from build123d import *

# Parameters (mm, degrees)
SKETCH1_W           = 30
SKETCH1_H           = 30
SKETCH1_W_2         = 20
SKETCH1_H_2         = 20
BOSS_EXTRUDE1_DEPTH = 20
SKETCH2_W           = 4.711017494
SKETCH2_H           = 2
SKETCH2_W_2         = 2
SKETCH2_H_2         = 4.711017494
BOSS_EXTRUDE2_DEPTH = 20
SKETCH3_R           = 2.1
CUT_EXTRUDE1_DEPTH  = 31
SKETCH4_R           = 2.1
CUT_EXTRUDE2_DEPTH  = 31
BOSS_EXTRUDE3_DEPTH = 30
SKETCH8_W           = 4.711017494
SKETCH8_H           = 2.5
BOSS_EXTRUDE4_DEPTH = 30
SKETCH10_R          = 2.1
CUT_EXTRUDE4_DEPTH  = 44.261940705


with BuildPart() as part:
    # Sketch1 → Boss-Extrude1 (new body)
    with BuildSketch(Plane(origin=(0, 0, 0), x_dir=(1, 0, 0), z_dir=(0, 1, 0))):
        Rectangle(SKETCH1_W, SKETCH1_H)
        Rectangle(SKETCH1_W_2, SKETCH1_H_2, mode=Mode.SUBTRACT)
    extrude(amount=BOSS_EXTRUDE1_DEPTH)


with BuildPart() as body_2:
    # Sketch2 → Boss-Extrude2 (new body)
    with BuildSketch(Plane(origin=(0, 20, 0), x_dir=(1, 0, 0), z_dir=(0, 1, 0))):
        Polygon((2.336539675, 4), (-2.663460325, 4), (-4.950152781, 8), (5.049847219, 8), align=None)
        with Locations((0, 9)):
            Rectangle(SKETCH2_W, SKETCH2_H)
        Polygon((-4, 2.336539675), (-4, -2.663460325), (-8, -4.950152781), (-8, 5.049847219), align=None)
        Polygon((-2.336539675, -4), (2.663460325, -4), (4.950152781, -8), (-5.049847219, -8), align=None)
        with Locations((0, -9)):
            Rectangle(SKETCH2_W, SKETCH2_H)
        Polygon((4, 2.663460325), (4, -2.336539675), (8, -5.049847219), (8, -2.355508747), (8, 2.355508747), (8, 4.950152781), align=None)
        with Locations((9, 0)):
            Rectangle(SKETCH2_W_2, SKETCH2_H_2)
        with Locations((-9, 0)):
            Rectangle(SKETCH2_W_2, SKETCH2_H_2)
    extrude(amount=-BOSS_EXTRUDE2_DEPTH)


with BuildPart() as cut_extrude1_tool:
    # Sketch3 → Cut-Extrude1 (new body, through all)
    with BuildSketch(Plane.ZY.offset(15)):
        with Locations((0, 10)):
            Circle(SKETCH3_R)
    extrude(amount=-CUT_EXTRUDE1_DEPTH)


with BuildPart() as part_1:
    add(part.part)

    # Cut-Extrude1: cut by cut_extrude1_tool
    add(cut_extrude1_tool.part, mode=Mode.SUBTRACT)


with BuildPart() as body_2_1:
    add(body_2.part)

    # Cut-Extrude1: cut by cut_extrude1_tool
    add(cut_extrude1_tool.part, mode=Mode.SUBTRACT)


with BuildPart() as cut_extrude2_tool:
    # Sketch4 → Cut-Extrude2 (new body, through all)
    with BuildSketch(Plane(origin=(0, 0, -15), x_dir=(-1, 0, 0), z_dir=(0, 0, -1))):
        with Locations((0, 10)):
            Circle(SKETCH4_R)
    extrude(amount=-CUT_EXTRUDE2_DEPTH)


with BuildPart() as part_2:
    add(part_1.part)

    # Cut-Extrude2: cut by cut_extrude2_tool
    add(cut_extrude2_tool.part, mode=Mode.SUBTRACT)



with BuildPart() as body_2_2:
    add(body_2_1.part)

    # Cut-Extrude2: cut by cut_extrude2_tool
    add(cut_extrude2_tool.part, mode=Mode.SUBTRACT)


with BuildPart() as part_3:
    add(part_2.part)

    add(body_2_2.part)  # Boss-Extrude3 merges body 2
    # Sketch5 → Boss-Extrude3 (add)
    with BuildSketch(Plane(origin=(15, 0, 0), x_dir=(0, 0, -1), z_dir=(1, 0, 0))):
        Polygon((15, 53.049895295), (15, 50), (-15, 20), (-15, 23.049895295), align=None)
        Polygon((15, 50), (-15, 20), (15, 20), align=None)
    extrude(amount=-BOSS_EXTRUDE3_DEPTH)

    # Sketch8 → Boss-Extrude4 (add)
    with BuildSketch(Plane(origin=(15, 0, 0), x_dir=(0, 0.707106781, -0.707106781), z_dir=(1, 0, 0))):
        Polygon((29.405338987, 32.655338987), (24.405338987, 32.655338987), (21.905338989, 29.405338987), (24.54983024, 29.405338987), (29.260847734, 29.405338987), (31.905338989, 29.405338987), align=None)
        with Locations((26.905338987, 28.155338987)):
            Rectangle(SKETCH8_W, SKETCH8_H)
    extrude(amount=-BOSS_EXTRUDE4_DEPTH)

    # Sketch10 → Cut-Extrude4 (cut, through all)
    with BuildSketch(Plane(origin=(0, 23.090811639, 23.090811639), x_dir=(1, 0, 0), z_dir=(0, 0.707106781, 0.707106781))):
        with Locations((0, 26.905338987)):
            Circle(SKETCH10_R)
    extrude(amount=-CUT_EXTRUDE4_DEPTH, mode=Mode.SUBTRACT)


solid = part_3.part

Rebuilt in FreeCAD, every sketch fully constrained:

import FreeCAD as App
import Part
import Sketcher
from FreeCAD import Vector
Q = App.Units.Quantity

doc = App.newDocument("Part")
body = doc.addObject("PartDesign::Body", "Body")

# Sketch on XZ plane
sketch1 = doc.addObject("Sketcher::SketchObject", "Sketch")
body.addObject(sketch1)
sketch1.AttachmentSupport = (doc.XZ_Plane, [""])
sketch1.MapMode = "FlatFace"
sketch1.addGeometry(Part.LineSegment(Vector(-15, -15, 0), Vector(-15, 15, 0)), False)
sketch1.addGeometry(Part.LineSegment(Vector(-15, 15, 0), Vector(15, 15, 0)), False)
sketch1.addGeometry(Part.LineSegment(Vector(15, 15, 0), Vector(15, -15, 0)), False)
sketch1.addGeometry(Part.LineSegment(Vector(15, -15, 0), Vector(-15, -15, 0)), False)
sketch1.addGeometry(Part.LineSegment(Vector(10, 10, 0), Vector(-10, 10, 0)), False)
sketch1.addGeometry(Part.LineSegment(Vector(-10, 10, 0), Vector(-10, -10, 0)), False)
sketch1.addGeometry(Part.LineSegment(Vector(-10, -10, 0), Vector(10, -10, 0)), False)
sketch1.addGeometry(Part.LineSegment(Vector(10, -10, 0), Vector(10, 10, 0)), False)
sketch1.addConstraint(Sketcher.Constraint("Coincident", 0, 2, 1, 1))
sketch1.addConstraint(Sketcher.Constraint("Coincident", 1, 2, 2, 1))
sketch1.addConstraint(Sketcher.Constraint("Coincident", 2, 2, 3, 1))
sketch1.addConstraint(Sketcher.Constraint("Coincident", 3, 2, 0, 1))
sketch1.addConstraint(Sketcher.Constraint("Coincident", 4, 2, 5, 1))
sketch1.addConstraint(Sketcher.Constraint("Coincident", 5, 2, 6, 1))
sketch1.addConstraint(Sketcher.Constraint("Coincident", 6, 2, 7, 1))
sketch1.addConstraint(Sketcher.Constraint("Coincident", 7, 2, 4, 1))
sketch1.addConstraint(Sketcher.Constraint("Vertical", 0))
sketch1.addConstraint(Sketcher.Constraint("Horizontal", 1))
sketch1.addConstraint(Sketcher.Constraint("Vertical", 2))
sketch1.addConstraint(Sketcher.Constraint("Horizontal", 3))
sketch1.addConstraint(Sketcher.Constraint("Horizontal", 4))
sketch1.addConstraint(Sketcher.Constraint("Vertical", 5))
sketch1.addConstraint(Sketcher.Constraint("Horizontal", 6))
sketch1.addConstraint(Sketcher.Constraint("Vertical", 7))
sketch1.addConstraint(Sketcher.Constraint("Symmetric", 0, 2, 2, 2, -1, 1))
sketch1.addConstraint(Sketcher.Constraint("Symmetric", 4, 2, 6, 2, -1, 1))
sketch1.addConstraint(Sketcher.Constraint("Equal", 3, 0))
sketch1.addConstraint(Sketcher.Constraint("Equal", 6, 5))
sketch1.addConstraint(Sketcher.Constraint("DistanceX", 1, 1, 1, 2, 30.0))
sketch1.addConstraint(Sketcher.Constraint("DistanceX", 4, 2, 4, 1, 20.0))
pad1 = doc.addObject("PartDesign::Pad", "Pad")
body.addObject(pad1)
pad1.Profile = sketch1
pad1.Length = 20
pad1.Reversed = True
body2 = doc.addObject("PartDesign::Body", "Body001")
body2.AllowCompound = True

# Sketch on XZ plane
sketch2 = doc.addObject("Sketcher::SketchObject", "Sketch001")
body2.addObject(sketch2)
sketch2.AttachmentSupport = (doc.getObject("XZ_Plane001"), [""])
sketch2.MapMode = "FlatFace"
sketch2.AttachmentOffset = App.Placement(Vector(0, 0, -20), App.Rotation())
sketch2.addGeometry(Part.LineSegment(Vector(-2.7, -4, 0), Vector(2.3, -4, 0)), False)
sketch2.addGeometry(Part.LineSegment(Vector(2.3, -4, 0), Vector(5, -8, 0)), False)
sketch2.addGeometry(Part.LineSegment(Vector(5, -8, 0), Vector(2.4, -8, 0)), False)
sketch2.addGeometry(Part.LineSegment(Vector(2.4, -8, 0), Vector(2.4, -10, 0)), False)
sketch2.addGeometry(Part.LineSegment(Vector(2.4, -10, 0), Vector(-2.4, -10, 0)), False)
sketch2.addGeometry(Part.LineSegment(Vector(-2.4, -10, 0), Vector(-2.4, -8, 0)), False)
sketch2.addGeometry(Part.LineSegment(Vector(-2.4, -8, 0), Vector(-5, -8, 0)), False)
sketch2.addGeometry(Part.LineSegment(Vector(-5, -8, 0), Vector(-2.7, -4, 0)), False)
sketch2.addGeometry(Part.LineSegment(Vector(-4, 2.7, 0), Vector(-4, -2.3, 0)), False)
sketch2.addGeometry(Part.LineSegment(Vector(-4, -2.3, 0), Vector(-8, -5, 0)), False)
sketch2.addGeometry(Part.LineSegment(Vector(-8, -5, 0), Vector(-8, -2.4, 0)), False)
sketch2.addGeometry(Part.LineSegment(Vector(-8, -2.4, 0), Vector(-10, -2.4, 0)), False)
sketch2.addGeometry(Part.LineSegment(Vector(-10, -2.4, 0), Vector(-10, 2.4, 0)), False)
sketch2.addGeometry(Part.LineSegment(Vector(-10, 2.4, 0), Vector(-8, 2.4, 0)), False)
sketch2.addGeometry(Part.LineSegment(Vector(-8, 2.4, 0), Vector(-8, 5, 0)), False)
sketch2.addGeometry(Part.LineSegment(Vector(-8, 5, 0), Vector(-4, 2.7, 0)), False)
sketch2.addGeometry(Part.LineSegment(Vector(2.7, 4, 0), Vector(-2.3, 4, 0)), False)
sketch2.addGeometry(Part.LineSegment(Vector(-2.3, 4, 0), Vector(-5, 8, 0)), False)
sketch2.addGeometry(Part.LineSegment(Vector(-5, 8, 0), Vector(-2.4, 8, 0)), False)
sketch2.addGeometry(Part.LineSegment(Vector(-2.4, 8, 0), Vector(-2.4, 10, 0)), False)
sketch2.addGeometry(Part.LineSegment(Vector(-2.4, 10, 0), Vector(2.4, 10, 0)), False)
sketch2.addGeometry(Part.LineSegment(Vector(2.4, 10, 0), Vector(2.4, 8, 0)), False)
sketch2.addGeometry(Part.LineSegment(Vector(2.4, 8, 0), Vector(5, 8, 0)), False)
sketch2.addGeometry(Part.LineSegment(Vector(5, 8, 0), Vector(2.7, 4, 0)), False)
sketch2.addGeometry(Part.LineSegment(Vector(4, -2.7, 0), Vector(4, 2.3, 0)), False)
sketch2.addGeometry(Part.LineSegment(Vector(4, 2.3, 0), Vector(8, 5, 0)), False)
sketch2.addGeometry(Part.LineSegment(Vector(8, 5, 0), Vector(8, 2.4, 0)), False)
sketch2.addGeometry(Part.LineSegment(Vector(8, 2.4, 0), Vector(10, 2.4, 0)), False)
sketch2.addGeometry(Part.LineSegment(Vector(10, 2.4, 0), Vector(10, -2.4, 0)), False)
sketch2.addGeometry(Part.LineSegment(Vector(10, -2.4, 0), Vector(8, -2.4, 0)), False)
sketch2.addGeometry(Part.LineSegment(Vector(8, -2.4, 0), Vector(8, -5, 0)), False)
sketch2.addGeometry(Part.LineSegment(Vector(8, -5, 0), Vector(4, -2.7, 0)), False)
sketch2.addConstraint(Sketcher.Constraint("Coincident", 0, 2, 1, 1))
sketch2.addConstraint(Sketcher.Constraint("Coincident", 1, 2, 2, 1))
sketch2.addConstraint(Sketcher.Constraint("Coincident", 2, 2, 3, 1))
sketch2.addConstraint(Sketcher.Constraint("Coincident", 3, 2, 4, 1))
sketch2.addConstraint(Sketcher.Constraint("Coincident", 4, 2, 5, 1))
sketch2.addConstraint(Sketcher.Constraint("Coincident", 5, 2, 6, 1))
sketch2.addConstraint(Sketcher.Constraint("Coincident", 6, 2, 7, 1))
sketch2.addConstraint(Sketcher.Constraint("Coincident", 7, 2, 0, 1))
sketch2.addConstraint(Sketcher.Constraint("Coincident", 8, 2, 9, 1))
sketch2.addConstraint(Sketcher.Constraint("Coincident", 9, 2, 10, 1))
sketch2.addConstraint(Sketcher.Constraint("Coincident", 10, 2, 11, 1))
sketch2.addConstraint(Sketcher.Constraint("Coincident", 11, 2, 12, 1))
sketch2.addConstraint(Sketcher.Constraint("Coincident", 12, 2, 13, 1))
sketch2.addConstraint(Sketcher.Constraint("Coincident", 13, 2, 14, 1))
sketch2.addConstraint(Sketcher.Constraint("Coincident", 14, 2, 15, 1))
sketch2.addConstraint(Sketcher.Constraint("Coincident", 15, 2, 8, 1))
sketch2.addConstraint(Sketcher.Constraint("Coincident", 16, 2, 17, 1))
sketch2.addConstraint(Sketcher.Constraint("Coincident", 17, 2, 18, 1))
sketch2.addConstraint(Sketcher.Constraint("Coincident", 18, 2, 19, 1))
sketch2.addConstraint(Sketcher.Constraint("Coincident", 19, 2, 20, 1))
sketch2.addConstraint(Sketcher.Constraint("Coincident", 20, 2, 21, 1))
sketch2.addConstraint(Sketcher.Constraint("Coincident", 21, 2, 22, 1))
sketch2.addConstraint(Sketcher.Constraint("Coincident", 22, 2, 23, 1))
sketch2.addConstraint(Sketcher.Constraint("Coincident", 23, 2, 16, 1))
sketch2.addConstraint(Sketcher.Constraint("Coincident", 24, 2, 25, 1))
sketch2.addConstraint(Sketcher.Constraint("Coincident", 25, 2, 26, 1))
sketch2.addConstraint(Sketcher.Constraint("Coincident", 26, 2, 27, 1))
sketch2.addConstraint(Sketcher.Constraint("Coincident", 27, 2, 28, 1))
sketch2.addConstraint(Sketcher.Constraint("Coincident", 28, 2, 29, 1))
sketch2.addConstraint(Sketcher.Constraint("Coincident", 29, 2, 30, 1))
sketch2.addConstraint(Sketcher.Constraint("Coincident", 30, 2, 31, 1))
sketch2.addConstraint(Sketcher.Constraint("Coincident", 31, 2, 24, 1))
sketch2.addConstraint(Sketcher.Constraint("Horizontal", 0))
sketch2.addConstraint(Sketcher.Constraint("Horizontal", 2))
sketch2.addConstraint(Sketcher.Constraint("Vertical", 3))
sketch2.addConstraint(Sketcher.Constraint("Horizontal", 4))
sketch2.addConstraint(Sketcher.Constraint("Vertical", 5))
sketch2.addConstraint(Sketcher.Constraint("Horizontal", 6))
sketch2.addConstraint(Sketcher.Constraint("Vertical", 8))
sketch2.addConstraint(Sketcher.Constraint("Vertical", 10))
sketch2.addConstraint(Sketcher.Constraint("Horizontal", 11))
sketch2.addConstraint(Sketcher.Constraint("Vertical", 12))
sketch2.addConstraint(Sketcher.Constraint("Horizontal", 13))
sketch2.addConstraint(Sketcher.Constraint("Vertical", 14))
sketch2.addConstraint(Sketcher.Constraint("Horizontal", 16))
sketch2.addConstraint(Sketcher.Constraint("Horizontal", 18))
sketch2.addConstraint(Sketcher.Constraint("Vertical", 19))
sketch2.addConstraint(Sketcher.Constraint("Horizontal", 20))
sketch2.addConstraint(Sketcher.Constraint("Vertical", 21))
sketch2.addConstraint(Sketcher.Constraint("Horizontal", 22))
sketch2.addConstraint(Sketcher.Constraint("Vertical", 24))
sketch2.addConstraint(Sketcher.Constraint("Vertical", 26))
sketch2.addConstraint(Sketcher.Constraint("Horizontal", 27))
sketch2.addConstraint(Sketcher.Constraint("Vertical", 28))
sketch2.addConstraint(Sketcher.Constraint("Horizontal", 29))
sketch2.addConstraint(Sketcher.Constraint("Vertical", 30))
sketch2.addConstraint(Sketcher.Constraint("Symmetric", 0, 2, 16, 2, -1, 1))
sketch2.addConstraint(Sketcher.Constraint("Symmetric", 1, 2, 17, 2, -1, 1))
sketch2.addConstraint(Sketcher.Constraint("Symmetric", 3, 2, 19, 2, -1, 1))
sketch2.addConstraint(Sketcher.Constraint("Symmetric", 5, 2, 21, 2, -1, 1))
sketch2.addConstraint(Sketcher.Constraint("Symmetric", 8, 2, 24, 2, -1, 1))
sketch2.addConstraint(Sketcher.Constraint("Symmetric", 9, 2, 25, 2, -1, 1))
sketch2.addConstraint(Sketcher.Constraint("Symmetric", 11, 2, 27, 2, -1, 1))
sketch2.addConstraint(Sketcher.Constraint("Symmetric", 13, 2, 29, 2, -1, 1))
sketch2.addConstraint(Sketcher.Constraint("Symmetric", 2, 2, 5, 2, -2))
sketch2.addConstraint(Sketcher.Constraint("Symmetric", 13, 2, 26, 2, -2))
sketch2.addConstraint(Sketcher.Constraint("Perpendicular", 1, 9))
sketch2.addConstraint(Sketcher.Constraint("Perpendicular", 7, 15))
sketch2.addConstraint(Sketcher.Constraint("Perpendicular", 15, 23))
sketch2.addConstraint(Sketcher.Constraint("Perpendicular", 23, 31))
sketch2.addConstraint(Sketcher.Constraint("Equal", 0, 16))
sketch2.addConstraint(Sketcher.Constraint("Equal", 29, 3))
sketch2.addConstraint(Sketcher.Constraint("Equal", 16, 8))
sketch2.addConstraint(Sketcher.Constraint("Equal", 18, 10))
sketch2.addConstraint(Sketcher.Constraint("Equal", 20, 12))
sketch2.addConstraint(Sketcher.Constraint("Equal", 22, 14))
sketch2.addConstraint(Sketcher.Constraint("Equal", 8, 24))
sketch2.addConstraint(Sketcher.Constraint("DistanceX", 0, 1, 0, 2, 5.0))
sketch2.addConstraint(Sketcher.Constraint("DistanceX", 11, 2, 11, 1, 2.0))
sketch2.addConstraint(Sketcher.Constraint("DistanceY", 0, 2, -1, 1, 4.0))
sketch2.addConstraint(Sketcher.Constraint("DistanceY", 1, 2, -1, 1, 8.0))
sketch2.addConstraint(Sketcher.Constraint("DistanceX", 8, 2, -1, 1, 4.0))
sketch2.addConstraint(Sketcher.Constraint("DistanceX", 2, 2, 2, 1, 2.694338))
sketch2.addConstraint(Sketcher.Constraint("Distance", 1, 4.833429))
sketch2.addConstraint(Sketcher.Constraint("Distance", 7, 4.60749))
sketch2.addConstraint(Sketcher.Constraint("DistanceX", 4, 2, 4, 1, 4.711017))
pad2 = doc.addObject("PartDesign::Pad", "Pad001")
body2.addObject(pad2)
pad2.Profile = sketch2
pad2.Length = 20
body3 = doc.addObject("PartDesign::Body", "Body002")

# Sketch on YZ plane
sketch3 = doc.addObject("Sketcher::SketchObject", "Sketch002")
body3.addObject(sketch3)
sketch3.AttachmentSupport = (doc.getObject("YZ_Plane002"), [""])
sketch3.MapMode = "FlatFace"
sketch3.AttachmentOffset = App.Placement(Vector(0, 0, -15), App.Rotation())
sketch3.addGeometry(Part.Circle(Vector(10, 0, 0), Vector(0, 0, 1), 2.1), False)
sketch3.addConstraint(Sketcher.Constraint("PointOnObject", 0, 3, -1))
sketch3.addConstraint(Sketcher.Constraint("Diameter", 0, 4.2))
sketch3.addConstraint(Sketcher.Constraint("DistanceX", -1, 1, 0, 3, 10.0))
pad3 = doc.addObject("PartDesign::Pad", "Pad002")
body3.addObject(pad3)
pad3.Profile = sketch3
pad3.Length = 31
doc.recompute()

body4 = doc.addObject("PartDesign::Body", "Body003")
body4.BaseFeature = body3
boolean = doc.addObject("PartDesign::Boolean", "Boolean")
body.addObject(boolean)
boolean.Type = "Cut"
boolean.addObjects([body4])
doc.recompute()
body2.AllowCompound = True
doc.recompute()

boolean2 = doc.addObject("PartDesign::Boolean", "Boolean001")
body2.addObject(boolean2)
boolean2.Type = "Cut"
boolean2.addObjects([body3])
body5 = doc.addObject("PartDesign::Body", "Body004")

# Sketch on XY plane
sketch4 = doc.addObject("Sketcher::SketchObject", "Sketch003")
body5.addObject(sketch4)
sketch4.AttachmentSupport = (doc.getObject("XY_Plane004"), [""])
sketch4.MapMode = "FlatFace"
sketch4.AttachmentOffset = App.Placement(Vector(0, 0, -15), App.Rotation())
sketch4.addGeometry(Part.Circle(Vector(0, 10, 0), Vector(0, 0, 1), 2.1), False)
sketch4.addConstraint(Sketcher.Constraint("PointOnObject", 0, 3, -2))
sketch4.addConstraint(Sketcher.Constraint("Diameter", 0, 4.2))
sketch4.addConstraint(Sketcher.Constraint("DistanceY", -1, 1, 0, 3, 10.0))
pad4 = doc.addObject("PartDesign::Pad", "Pad003")
body5.addObject(pad4)
pad4.Profile = sketch4
pad4.Length = 31
doc.recompute()

body6 = doc.addObject("PartDesign::Body", "Body005")
body6.BaseFeature = body5
boolean3 = doc.addObject("PartDesign::Boolean", "Boolean002")
body.addObject(boolean3)
boolean3.Type = "Cut"
boolean3.addObjects([body6])
doc.recompute()
body2.AllowCompound = True
doc.recompute()

boolean4 = doc.addObject("PartDesign::Boolean", "Boolean003")
body2.addObject(boolean4)
boolean4.Type = "Cut"
boolean4.addObjects([body5])
doc.recompute()

boolean5 = doc.addObject("PartDesign::Boolean", "Boolean004")
body.addObject(boolean5)
boolean5.Type = "Fuse"
boolean5.addObjects([body2])

# Sketch on YZ plane
sketch5 = doc.addObject("Sketcher::SketchObject", "Sketch004")
body.addObject(sketch5)
sketch5.AttachmentSupport = (doc.YZ_Plane, [""])
sketch5.MapMode = "FlatFace"
sketch5.AttachmentOffset = App.Placement(Vector(0, 0, 15), App.Rotation())
sketch5.addGeometry(Part.LineSegment(Vector(20, -15, 0), Vector(53, -15, 0)), False)
sketch5.addGeometry(Part.LineSegment(Vector(53, -15, 0), Vector(23, 15, 0)), False)
sketch5.addGeometry(Part.LineSegment(Vector(23, 15, 0), Vector(20, 15, 0)), False)
sketch5.addGeometry(Part.LineSegment(Vector(20, 15, 0), Vector(20, -15, 0)), False)
sketch5.addConstraint(Sketcher.Constraint("Coincident", 0, 2, 1, 1))
sketch5.addConstraint(Sketcher.Constraint("Coincident", 1, 2, 2, 1))
sketch5.addConstraint(Sketcher.Constraint("Coincident", 2, 2, 3, 1))
sketch5.addConstraint(Sketcher.Constraint("Coincident", 3, 2, 0, 1))
sketch5.addConstraint(Sketcher.Constraint("Horizontal", 0))
sketch5.addConstraint(Sketcher.Constraint("Horizontal", 2))
sketch5.addConstraint(Sketcher.Constraint("Vertical", 3))
sketch5.addConstraint(Sketcher.Constraint("DistanceY", 3, 2, 3, 1, 30.0))
sketch5.addConstraint(Sketcher.Constraint("Angle", 1, Q("135 deg")))
sketch5.addConstraint(Sketcher.Constraint("DistanceY", 0, 2, -1, 1, 15.0))
sketch5.addConstraint(Sketcher.Constraint("DistanceX", -1, 1, 2, 2, 20.0))
sketch5.addConstraint(Sketcher.Constraint("DistanceX", 0, 1, 0, 2, 33.049895))
pad5 = doc.addObject("PartDesign::Pad", "Pad004")
body.addObject(pad5)
pad5.Profile = sketch5
pad5.Length = 30
pad5.Reversed = True

# Sketch on YZ plane
sketch6 = doc.addObject("Sketcher::SketchObject", "Sketch005")
body.addObject(sketch6)
sketch6.AttachmentSupport = (doc.YZ_Plane, [""])
sketch6.MapMode = "FlatFace"
sketch6.AttachmentOffset = App.Placement(Vector(0, 0, 15), App.Rotation())
sketch6.addGeometry(Part.LineSegment(Vector(43.9, 2.3, 0), Vector(40.3, 5.8, 0)), False)
sketch6.addGeometry(Part.LineSegment(Vector(40.3, 5.8, 0), Vector(36.3, 5.3, 0)), False)
sketch6.addGeometry(Part.LineSegment(Vector(36.3, 5.3, 0), Vector(38.2, 3.4, 0)), False)
sketch6.addGeometry(Part.LineSegment(Vector(38.2, 3.4, 0), Vector(36.4, 1.7, 0)), False)
sketch6.addGeometry(Part.LineSegment(Vector(36.4, 1.7, 0), Vector(39.7, -1.7, 0)), False)
sketch6.addGeometry(Part.LineSegment(Vector(39.7, -1.7, 0), Vector(41.5, 0.1, 0)), False)
sketch6.addGeometry(Part.LineSegment(Vector(41.5, 0.1, 0), Vector(43.4, -1.8, 0)), False)
sketch6.addGeometry(Part.LineSegment(Vector(43.4, -1.8, 0), Vector(43.9, 2.3, 0)), False)
sketch6.addConstraint(Sketcher.Constraint("Coincident", 0, 2, 1, 1))
sketch6.addConstraint(Sketcher.Constraint("Coincident", 1, 2, 2, 1))
sketch6.addConstraint(Sketcher.Constraint("Coincident", 2, 2, 3, 1))
sketch6.addConstraint(Sketcher.Constraint("Coincident", 3, 2, 4, 1))
sketch6.addConstraint(Sketcher.Constraint("Coincident", 4, 2, 5, 1))
sketch6.addConstraint(Sketcher.Constraint("Coincident", 5, 2, 6, 1))
sketch6.addConstraint(Sketcher.Constraint("Coincident", 6, 2, 7, 1))
sketch6.addConstraint(Sketcher.Constraint("Coincident", 7, 2, 0, 1))
sketch6.addConstraint(Sketcher.Constraint("Parallel", 0, 2))
sketch6.addConstraint(Sketcher.Constraint("Perpendicular", 2, 3))
sketch6.addConstraint(Sketcher.Constraint("Perpendicular", 3, 4))
sketch6.addConstraint(Sketcher.Constraint("Perpendicular", 4, 5))
sketch6.addConstraint(Sketcher.Constraint("Perpendicular", 5, 6))
sketch6.addConstraint(Sketcher.Constraint("Equal", 3, 5))
sketch6.addConstraint(Sketcher.Constraint("Equal", 2, 6))
sketch6.addConstraint(Sketcher.Constraint("Equal", 1, 7))
sketch6.addConstraint(Sketcher.Constraint("Angle", 0, Q("135 deg")))
sketch6.addConstraint(Sketcher.Constraint("Distance", 0, 5.0))
sketch6.addConstraint(Sketcher.Constraint("Distance", 3, 2.5))
sketch6.addConstraint(Sketcher.Constraint("DistanceY", -1, 1, 1, 2, 5.303301))
sketch6.addConstraint(Sketcher.Constraint("DistanceX", -1, 1, 3, 2, 36.384299))
sketch6.addConstraint(Sketcher.Constraint("DistanceX", 4, 2, 0, 2, 0.632501))
sketch6.addConstraint(Sketcher.Constraint("Distance", 2, 2.644491))
sketch6.addConstraint(Sketcher.Constraint("DistanceX", -1, 1, 4, 2, 39.715491))
pad6 = doc.addObject("PartDesign::Pad", "Pad005")
body.addObject(pad6)
pad6.Profile = sketch6
pad6.Length = 30
pad6.Reversed = True

# Sketch on an angled plane
sketch7 = doc.addObject("Sketcher::SketchObject", "Sketch006")
body.addObject(sketch7)
sketch7.Placement = App.Placement(Vector(0, 23.090812, 23.090812), App.Rotation(Vector(1, 0, 0), Vector(0, 0.707106781, -0.707106781), Vector(0, 0.707106781, 0.707106781), "ZXY"))
sketch7.addGeometry(Part.Circle(Vector(0, 26.9, 0), Vector(0, 0, 1), 2.1), False)
sketch7.addConstraint(Sketcher.Constraint("PointOnObject", 0, 3, -2))
sketch7.addConstraint(Sketcher.Constraint("Diameter", 0, 4.2))
sketch7.addConstraint(Sketcher.Constraint("DistanceY", -1, 1, 0, 3, 26.905339))
pocket1 = doc.addObject("PartDesign::Pocket", "Pocket")
body.addObject(pocket1)
pocket1.Profile = sketch7
pocket1.Type = "ThroughAll"

doc.recompute()
